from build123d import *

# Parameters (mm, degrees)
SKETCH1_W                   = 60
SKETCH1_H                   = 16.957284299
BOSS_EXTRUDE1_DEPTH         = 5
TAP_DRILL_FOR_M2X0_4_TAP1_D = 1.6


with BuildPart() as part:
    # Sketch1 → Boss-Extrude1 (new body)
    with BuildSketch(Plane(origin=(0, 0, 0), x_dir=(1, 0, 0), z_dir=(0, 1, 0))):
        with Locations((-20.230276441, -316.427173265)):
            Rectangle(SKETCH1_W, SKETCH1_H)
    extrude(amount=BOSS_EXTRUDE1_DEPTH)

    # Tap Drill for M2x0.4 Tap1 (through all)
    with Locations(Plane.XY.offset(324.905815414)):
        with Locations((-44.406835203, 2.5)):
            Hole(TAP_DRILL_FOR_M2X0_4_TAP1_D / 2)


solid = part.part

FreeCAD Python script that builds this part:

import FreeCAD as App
import Part
import Sketcher

V = App.Vector
Q = App.Units.Quantity


def add_polygon(sketch, points):
    """Adds a closed chain of lines whose ends are joined by coincident constraints."""
    first, n = sketch.GeometryCount, len(points)
    for a, b in zip(points, points[1:] + points[:1]):
        sketch.addGeometry(Part.LineSegment(App.Vector(*a, 0), App.Vector(*b, 0)), False)
    for i in range(n):
        sketch.addConstraint(Sketcher.Constraint("Coincident", first + i, 2, first + (i + 1) % n, 1))

doc = App.newDocument("Part")
body = doc.addObject("PartDesign::Body", "Body")

# Sketch on XZ plane
sketch1 = body.newObject("Sketcher::SketchObject", "Sketch")
sketch1.AttachmentSupport = (doc.getObject("XZ_Plane"), [""])
sketch1.MapMode = "FlatFace"
add_polygon(sketch1, [(-50, 308), (-50, 325), (10, 325), (10, 308)])  # lines 0-3
sketch1.addConstraint([
    Sketcher.Constraint("Vertical", 0),
    Sketcher.Constraint("Horizontal", 1),
    Sketcher.Constraint("Vertical", 2),
    Sketcher.Constraint("Horizontal", 3),
    Sketcher.Constraint("DistanceX", 1, 1, 1, 2, Q("60 mm")),
    Sketcher.Constraint("DistanceY", 0, 1, 0, 2, Q("16.957284 mm")),
    Sketcher.Constraint("DistanceY", -1, 1, 2, 2, Q("307.948531 mm")),
    Sketcher.Constraint("DistanceX", 0, 2, -1, 1, Q("50.230276 mm")),
])
pad1 = body.newObject("PartDesign::Pad", "Pad")
pad1.Profile = sketch1
pad1.Length = 5
pad1.Reversed = True

# Sketch on XY plane
sketch2 = body.newObject("Sketcher::SketchObject", "Sketch001")
sketch2.AttachmentSupport = (doc.getObject("XY_Plane"), [""])
sketch2.MapMode = "FlatFace"
sketch2.AttachmentOffset = App.Placement(V(0, 0, 324.905815), App.Rotation())
sketch2.addGeometry(Part.Circle(V(-44.4, 2.5, 0), V(0, 0, 1), 0.8), False)
sketch2.addConstraint([
    Sketcher.Constraint("Diameter", 0, Q("1.6 mm")),
    Sketcher.Constraint("DistanceY", -1, 1, 0, 3, Q("2.5 mm")),
    Sketcher.Constraint("DistanceX", 0, 3, -1, 1, Q("44.406835 mm")),
])
doc.recompute()
hole = body.newObject("PartDesign::Hole", "Hole")
hole.Profile = sketch2
hole.ThreadType = "None"
hole.Diameter = 1.6
hole.DepthType = "ThroughAll"

doc.recompute()
